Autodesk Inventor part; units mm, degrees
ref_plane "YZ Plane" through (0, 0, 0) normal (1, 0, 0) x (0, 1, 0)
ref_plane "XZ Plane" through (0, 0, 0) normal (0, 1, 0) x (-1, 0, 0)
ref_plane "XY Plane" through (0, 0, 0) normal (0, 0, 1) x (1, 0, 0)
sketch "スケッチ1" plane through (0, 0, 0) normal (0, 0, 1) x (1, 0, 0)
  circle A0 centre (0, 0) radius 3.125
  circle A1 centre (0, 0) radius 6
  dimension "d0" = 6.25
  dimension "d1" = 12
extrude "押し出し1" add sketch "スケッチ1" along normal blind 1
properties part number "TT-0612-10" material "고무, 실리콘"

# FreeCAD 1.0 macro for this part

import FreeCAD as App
import Part
import Sketcher
Q = App.Units.Quantity

doc = App.newDocument("Part")
params = doc.addObject("Spreadsheet::Sheet", "Params")
for row, (alias, value) in enumerate([
    ("sketch1_diameter", "12 mm"),
    ("sketch1_diameter2", "6.25 mm"),
    ("pad1_length", "1 mm"),
], start=1):
    params.set(f"A{row}", alias)
    params.set(f"B{row}", "=" + value)
    params.setAlias(f"B{row}", alias)

body = doc.addObject("PartDesign::Body", "Body")

sketch1 = body.newObject("Sketcher::SketchObject", "Sketch")
sketch1.AttachmentSupport = (doc.getObject("XY_Plane"), [""])
sketch1.MapMode = "FlatFace"
sketch1.addGeometry([
    Part.Circle(App.Vector(0, 0, 0), App.Vector(0, 0, 1), 6),
    Part.Circle(App.Vector(0, 0, 0), App.Vector(0, 0, 1), 3.1),
], False)
sketch1.addConstraint([
    Sketcher.Constraint("Coincident", 0, 3, -1, 1),
    Sketcher.Constraint("Coincident", 1, 3, -1, 1),
    Sketcher.Constraint("Diameter", 0, Q("12 mm")),
    Sketcher.Constraint("Diameter", 1, Q("6.25 mm")),
])
sketch1.setExpression("Constraints[2]", "Params.sketch1_diameter")
sketch1.setExpression("Constraints[3]", "Params.sketch1_diameter2")
pad1 = body.newObject("PartDesign::Pad", "Pad")
pad1.Profile = sketch1
pad1.setExpression("Length", "Params.pad1_length")

doc.recompute()
